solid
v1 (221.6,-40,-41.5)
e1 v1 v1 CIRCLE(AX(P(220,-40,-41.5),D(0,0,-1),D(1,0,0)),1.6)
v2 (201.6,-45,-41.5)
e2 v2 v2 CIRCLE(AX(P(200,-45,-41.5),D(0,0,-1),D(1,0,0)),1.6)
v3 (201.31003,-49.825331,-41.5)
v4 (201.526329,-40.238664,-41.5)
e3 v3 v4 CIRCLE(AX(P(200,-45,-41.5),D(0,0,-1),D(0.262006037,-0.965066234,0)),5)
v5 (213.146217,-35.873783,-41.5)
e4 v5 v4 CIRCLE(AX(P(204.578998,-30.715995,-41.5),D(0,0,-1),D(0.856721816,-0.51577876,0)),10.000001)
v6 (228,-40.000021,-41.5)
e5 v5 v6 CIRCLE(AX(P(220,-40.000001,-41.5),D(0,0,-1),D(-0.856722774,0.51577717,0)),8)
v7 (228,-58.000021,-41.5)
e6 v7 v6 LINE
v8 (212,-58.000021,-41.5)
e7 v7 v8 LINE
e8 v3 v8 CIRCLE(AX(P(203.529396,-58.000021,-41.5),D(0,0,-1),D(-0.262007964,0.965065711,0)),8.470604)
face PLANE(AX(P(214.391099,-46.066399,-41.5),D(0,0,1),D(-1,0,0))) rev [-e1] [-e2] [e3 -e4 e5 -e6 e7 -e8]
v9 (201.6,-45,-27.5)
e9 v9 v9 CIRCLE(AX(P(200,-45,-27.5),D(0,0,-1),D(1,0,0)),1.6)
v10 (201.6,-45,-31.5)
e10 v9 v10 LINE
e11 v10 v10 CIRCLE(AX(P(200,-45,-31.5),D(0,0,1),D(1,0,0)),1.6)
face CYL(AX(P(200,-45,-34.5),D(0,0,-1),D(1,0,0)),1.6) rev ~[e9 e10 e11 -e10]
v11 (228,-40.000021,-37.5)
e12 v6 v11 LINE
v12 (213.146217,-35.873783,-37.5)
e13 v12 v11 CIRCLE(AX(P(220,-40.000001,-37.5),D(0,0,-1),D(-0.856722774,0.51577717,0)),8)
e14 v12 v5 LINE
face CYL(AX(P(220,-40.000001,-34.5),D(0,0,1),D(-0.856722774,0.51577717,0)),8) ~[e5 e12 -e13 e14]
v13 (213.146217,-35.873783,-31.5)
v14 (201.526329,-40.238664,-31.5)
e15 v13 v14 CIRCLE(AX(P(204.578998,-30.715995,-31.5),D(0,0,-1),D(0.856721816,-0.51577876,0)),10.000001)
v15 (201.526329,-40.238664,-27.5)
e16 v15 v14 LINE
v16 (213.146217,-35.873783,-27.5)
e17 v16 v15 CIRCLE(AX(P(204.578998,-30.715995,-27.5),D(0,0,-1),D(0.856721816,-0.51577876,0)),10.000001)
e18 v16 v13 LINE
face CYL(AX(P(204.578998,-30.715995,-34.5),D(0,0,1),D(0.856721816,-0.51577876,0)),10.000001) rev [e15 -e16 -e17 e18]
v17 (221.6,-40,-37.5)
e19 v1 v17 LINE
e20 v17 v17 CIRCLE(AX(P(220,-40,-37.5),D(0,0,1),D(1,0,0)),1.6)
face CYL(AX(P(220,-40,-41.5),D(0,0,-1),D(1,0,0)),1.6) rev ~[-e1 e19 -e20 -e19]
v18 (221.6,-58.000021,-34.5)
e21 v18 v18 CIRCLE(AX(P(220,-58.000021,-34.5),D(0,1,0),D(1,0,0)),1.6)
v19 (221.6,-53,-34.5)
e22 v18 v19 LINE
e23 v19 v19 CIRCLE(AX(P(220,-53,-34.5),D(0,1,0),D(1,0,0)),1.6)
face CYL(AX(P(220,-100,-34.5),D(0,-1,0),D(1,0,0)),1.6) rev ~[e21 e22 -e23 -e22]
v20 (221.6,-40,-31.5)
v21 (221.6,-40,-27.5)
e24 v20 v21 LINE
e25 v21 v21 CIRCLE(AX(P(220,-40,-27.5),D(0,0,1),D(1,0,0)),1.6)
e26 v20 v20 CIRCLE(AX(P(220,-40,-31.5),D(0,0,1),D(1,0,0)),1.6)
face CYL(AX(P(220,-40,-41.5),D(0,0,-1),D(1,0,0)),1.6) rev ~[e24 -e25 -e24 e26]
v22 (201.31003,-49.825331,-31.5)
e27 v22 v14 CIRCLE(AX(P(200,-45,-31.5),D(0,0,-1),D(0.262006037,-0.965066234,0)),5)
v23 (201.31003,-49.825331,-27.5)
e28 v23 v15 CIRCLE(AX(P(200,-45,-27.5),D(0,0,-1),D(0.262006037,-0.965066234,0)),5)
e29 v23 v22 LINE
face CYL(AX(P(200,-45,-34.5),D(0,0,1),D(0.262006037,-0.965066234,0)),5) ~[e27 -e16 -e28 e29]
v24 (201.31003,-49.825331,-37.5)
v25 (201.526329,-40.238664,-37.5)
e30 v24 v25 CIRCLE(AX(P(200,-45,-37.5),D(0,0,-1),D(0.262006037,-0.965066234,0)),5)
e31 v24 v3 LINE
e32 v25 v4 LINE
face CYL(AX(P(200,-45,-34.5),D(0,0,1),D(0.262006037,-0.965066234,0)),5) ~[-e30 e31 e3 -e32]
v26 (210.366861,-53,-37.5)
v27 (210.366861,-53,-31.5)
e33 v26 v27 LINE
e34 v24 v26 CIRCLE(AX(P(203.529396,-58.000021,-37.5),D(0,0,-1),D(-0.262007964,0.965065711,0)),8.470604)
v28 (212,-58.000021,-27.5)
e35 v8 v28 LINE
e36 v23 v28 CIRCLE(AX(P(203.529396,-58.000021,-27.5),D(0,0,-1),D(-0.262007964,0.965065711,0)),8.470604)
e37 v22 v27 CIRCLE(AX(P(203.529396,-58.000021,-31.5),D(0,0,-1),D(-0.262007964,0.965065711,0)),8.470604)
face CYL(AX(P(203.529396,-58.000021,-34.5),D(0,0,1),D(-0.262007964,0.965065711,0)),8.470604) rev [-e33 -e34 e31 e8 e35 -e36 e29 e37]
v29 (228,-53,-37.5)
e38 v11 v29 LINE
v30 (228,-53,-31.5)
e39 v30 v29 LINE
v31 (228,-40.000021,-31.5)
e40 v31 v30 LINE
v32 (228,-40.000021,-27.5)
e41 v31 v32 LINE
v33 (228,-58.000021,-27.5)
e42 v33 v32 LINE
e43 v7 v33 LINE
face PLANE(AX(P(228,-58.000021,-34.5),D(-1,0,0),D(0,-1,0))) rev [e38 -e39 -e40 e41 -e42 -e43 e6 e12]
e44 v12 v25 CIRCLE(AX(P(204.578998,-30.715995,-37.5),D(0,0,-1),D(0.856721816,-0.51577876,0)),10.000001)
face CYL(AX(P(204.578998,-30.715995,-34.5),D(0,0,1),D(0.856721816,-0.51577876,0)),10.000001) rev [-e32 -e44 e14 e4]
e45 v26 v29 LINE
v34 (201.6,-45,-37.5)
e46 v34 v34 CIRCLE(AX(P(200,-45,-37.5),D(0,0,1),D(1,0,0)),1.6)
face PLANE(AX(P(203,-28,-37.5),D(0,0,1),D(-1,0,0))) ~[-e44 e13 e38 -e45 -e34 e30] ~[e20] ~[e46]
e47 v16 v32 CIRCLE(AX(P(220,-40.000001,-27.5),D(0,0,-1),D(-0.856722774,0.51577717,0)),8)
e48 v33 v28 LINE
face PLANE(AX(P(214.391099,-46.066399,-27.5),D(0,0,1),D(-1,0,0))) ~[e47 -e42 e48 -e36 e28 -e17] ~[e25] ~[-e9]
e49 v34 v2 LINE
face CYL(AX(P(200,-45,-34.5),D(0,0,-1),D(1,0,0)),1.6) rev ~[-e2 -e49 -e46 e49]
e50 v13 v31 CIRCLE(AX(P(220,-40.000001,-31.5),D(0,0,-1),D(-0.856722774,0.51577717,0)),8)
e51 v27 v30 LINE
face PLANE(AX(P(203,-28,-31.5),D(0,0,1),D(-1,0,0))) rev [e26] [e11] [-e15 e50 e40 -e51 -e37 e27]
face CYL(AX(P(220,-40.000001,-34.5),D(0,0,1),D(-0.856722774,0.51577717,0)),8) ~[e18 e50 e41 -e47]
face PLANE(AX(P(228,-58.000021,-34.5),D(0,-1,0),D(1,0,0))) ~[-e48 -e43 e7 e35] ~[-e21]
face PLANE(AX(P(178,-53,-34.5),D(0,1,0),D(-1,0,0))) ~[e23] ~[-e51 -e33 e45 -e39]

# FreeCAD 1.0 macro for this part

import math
import FreeCAD as App
import Part
import Sketcher
from FreeCAD import Vector


def add_polygon(sketch, points):
    """Adds a closed chain of lines whose ends are joined by coincident constraints."""
    first, n = sketch.GeometryCount, len(points)
    for a, b in zip(points, points[1:] + points[:1]):
        sketch.addGeometry(Part.LineSegment(App.Vector(*a, 0), App.Vector(*b, 0)), False)
    for i in range(n):
        sketch.addConstraint(Sketcher.Constraint("Coincident", first + i, 2, first + (i + 1) % n, 1))

doc = App.newDocument("Part")
body = doc.addObject("PartDesign::Body", "Body")

sketch1 = body.newObject("Sketcher::SketchObject", "Sketch")
sketch1.AttachmentSupport = (doc.getObject("XY_Plane"), [""])
sketch1.MapMode = "FlatFace"
sketch1.AttachmentOffset = App.Placement(Vector(0, 0, -41.5), App.Rotation())
sketch1.addGeometry(Part.Circle(Vector(220, 40, 0), Vector(0, 0, 1), 1.6), False)
sketch1.addConstraint(Sketcher.Constraint("Diameter", 0, 3.2))
sketch1.addConstraint(Sketcher.Constraint("DistanceX", -1, 1, 0, 3, 220.0))
sketch1.addConstraint(Sketcher.Constraint("DistanceY", -1, 1, 0, 3, 40.0))
pad1 = body.newObject("PartDesign::Pad", "Pad")
pad1.Profile = sketch1
pad1.Length = 23
body2 = doc.addObject("PartDesign::Body", "Body001")

sketch2 = body2.newObject("Sketcher::SketchObject", "Sketch001")
sketch2.AttachmentSupport = (doc.getObject("XY_Plane001"), [""])
sketch2.MapMode = "FlatFace"
sketch2.addGeometry(Part.Circle(Vector(0, 0, 0), Vector(0, 0, 1), 1.6), False)
sketch2.addConstraint(Sketcher.Constraint("Coincident", 0, 3, -1, 1))
sketch2.addConstraint(Sketcher.Constraint("Diameter", 0, 3.2))
pad2 = body2.newObject("PartDesign::Pad", "Pad001")
pad2.Profile = sketch2
pad2.Length = 200
body3 = doc.addObject("PartDesign::Body", "Body002")
doc.recompute()

body2.Placement = App.Placement(Vector(0, 0, 0), App.Rotation(Vector(1, 0, 0), 90))
boolean = body3.newObject("PartDesign::Boolean", "Boolean")
boolean.Type = "Fuse"
boolean.addObjects([body2])
body4 = doc.addObject("PartDesign::Body", "Body003")
doc.recompute()

body3.Placement = App.Placement(Vector(220, 100, -34.5), App.Rotation(Vector(0, 0, 1), 0))
boolean2 = body4.newObject("PartDesign::Boolean", "Boolean001")
boolean2.Type = "Fuse"
boolean2.addObjects([body3])
body5 = doc.addObject("PartDesign::Body", "Body004")

sketch3 = body5.newObject("Sketcher::SketchObject", "Sketch002")
sketch3.AttachmentSupport = (doc.getObject("XY_Plane004"), [""])
sketch3.MapMode = "FlatFace"
add_polygon(sketch3, [(178, 53), (178, 3), (228, 3), (228, 53)])
sketch3.addConstraint(Sketcher.Constraint("Vertical", 0))
sketch3.addConstraint(Sketcher.Constraint("Horizontal", 1))
sketch3.addConstraint(Sketcher.Constraint("Vertical", 2))
sketch3.addConstraint(Sketcher.Constraint("Horizontal", 3))
sketch3.addConstraint(Sketcher.Constraint("Equal", 3, 0))
sketch3.addConstraint(Sketcher.Constraint("DistanceX", 1, 1, 1, 2, 50.0))
sketch3.addConstraint(Sketcher.Constraint("DistanceX", -1, 1, 0, 2, 178.0))
sketch3.addConstraint(Sketcher.Constraint("DistanceY", -1, 1, 0, 2, 3.0))
pad3 = body5.newObject("PartDesign::Pad", "Pad002")
pad3.Profile = sketch3
pad3.Length = 6
pad3.Midplane = True
body6 = doc.addObject("PartDesign::Body", "Body005")

sketch4 = body6.newObject("Sketcher::SketchObject", "Sketch003")
sketch4.AttachmentSupport = (doc.getObject("XY_Plane005"), [""])
sketch4.MapMode = "FlatFace"
sketch4.addGeometry(Part.ArcOfCircle(Part.Circle(Vector(220, 40, 0), Vector(0, 0, 1), 8), math.radians(-149), math.radians(0)), False)
sketch4.addGeometry(Part.LineSegment(Vector(228, 40, 0), Vector(228, 58, 0)), False)
sketch4.addGeometry(Part.LineSegment(Vector(228, 58, 0), Vector(212, 58, 0)), False)
sketch4.addGeometry(Part.ArcOfCircle(Part.Circle(Vector(203.5, 58, 0), Vector(0, 0, 1), 8.5), math.radians(-105), math.radians(0)), False)
sketch4.addGeometry(Part.ArcOfCircle(Part.Circle(Vector(200, 45, 0), Vector(0, 0, 1), 5), math.radians(75), math.radians(288)), False)
sketch4.addGeometry(Part.ArcOfCircle(Part.Circle(Vector(204.6, 30.7, 0), Vector(0, 0, 1), 10), math.radians(31), math.radians(108)), False)
sketch4.addGeometry(Part.Circle(Vector(200, 45, 0), Vector(0, 0, 1), 1.6), False)
sketch4.addConstraint(Sketcher.Constraint("Coincident", 0, 2, 1, 1))
sketch4.addConstraint(Sketcher.Constraint("Coincident", 1, 2, 2, 1))
sketch4.addConstraint(Sketcher.Constraint("Coincident", 2, 2, 3, 2))
sketch4.addConstraint(Sketcher.Constraint("Tangent", 3, 1, 4, 1))
sketch4.addConstraint(Sketcher.Constraint("Tangent", 4, 2, 5, 2))
sketch4.addConstraint(Sketcher.Constraint("Tangent", 5, 1, 0, 1))
sketch4.addConstraint(Sketcher.Constraint("Vertical", 1))
sketch4.addConstraint(Sketcher.Constraint("Horizontal", 2))
sketch4.addConstraint(Sketcher.Constraint("Coincident", 6, 3, 4, 3))
sketch4.addConstraint(Sketcher.Constraint("Horizontal", 3, 3, 1, 2))
sketch4.addConstraint(Sketcher.Constraint("Radius", 0, 8.0))
sketch4.addConstraint(Sketcher.Constraint("Radius", 4, 5.0))
sketch4.addConstraint(Sketcher.Constraint("Radius", 5, 10.000001))
sketch4.addConstraint(Sketcher.Constraint("Diameter", 6, 3.2))
sketch4.addConstraint(Sketcher.Constraint("DistanceX", 2, 2, 2, 1, 16.0))
sketch4.addConstraint(Sketcher.Constraint("DistanceY", 1, 1, 1, 2, 18.0))
sketch4.addConstraint(Sketcher.Constraint("DistanceX", -1, 1, 0, 3, 220.0))
sketch4.addConstraint(Sketcher.Constraint("DistanceY", -1, 1, 0, 3, 40.000001))
sketch4.addConstraint(Sketcher.Constraint("DistanceX", -1, 1, 4, 3, 200.0))
sketch4.addConstraint(Sketcher.Constraint("DistanceY", -1, 1, 4, 3, 45.0))
sketch4.addConstraint(Sketcher.Constraint("Radius", 3, 8.470604))
pad4 = body6.newObject("PartDesign::Pad", "Pad003")
pad4.Profile = sketch4
pad4.Length = 14
pad4.Midplane = True
doc.recompute()

boolean3 = body6.newObject("PartDesign::Boolean", "Boolean002")
boolean3.Type = "Cut"
boolean3.addObjects([body5])
body7 = doc.addObject("PartDesign::Body", "Body006")
doc.recompute()

body6.Placement = App.Placement(Vector(0, 0, -34.5), App.Rotation(Vector(0, 0, 1), 0))
boolean4 = body7.newObject("PartDesign::Boolean", "Boolean003")
boolean4.Type = "Fuse"
boolean4.addObjects([body6])
doc.recompute()

boolean5 = body7.newObject("PartDesign::Boolean", "Boolean004")
boolean5.Type = "Cut"
boolean5.addObjects([body4])
doc.recompute()

boolean6 = body7.newObject("PartDesign::Boolean", "Boolean005")
boolean6.Type = "Cut"
boolean6.addObjects([body])
body8 = doc.addObject("PartDesign::Body", "Body007")
doc.recompute()

mirroring = doc.addObject("Part::Mirroring", "Mirroring")
mirroring.Source = body7
mirroring.Base = Vector(0, 0, 0)
mirroring.Normal = Vector(0, 1, 0)
body8.BaseFeature = mirroring
doc.recompute()
body7.Visibility = False
mirroring.Visibility = False

doc.recompute()
